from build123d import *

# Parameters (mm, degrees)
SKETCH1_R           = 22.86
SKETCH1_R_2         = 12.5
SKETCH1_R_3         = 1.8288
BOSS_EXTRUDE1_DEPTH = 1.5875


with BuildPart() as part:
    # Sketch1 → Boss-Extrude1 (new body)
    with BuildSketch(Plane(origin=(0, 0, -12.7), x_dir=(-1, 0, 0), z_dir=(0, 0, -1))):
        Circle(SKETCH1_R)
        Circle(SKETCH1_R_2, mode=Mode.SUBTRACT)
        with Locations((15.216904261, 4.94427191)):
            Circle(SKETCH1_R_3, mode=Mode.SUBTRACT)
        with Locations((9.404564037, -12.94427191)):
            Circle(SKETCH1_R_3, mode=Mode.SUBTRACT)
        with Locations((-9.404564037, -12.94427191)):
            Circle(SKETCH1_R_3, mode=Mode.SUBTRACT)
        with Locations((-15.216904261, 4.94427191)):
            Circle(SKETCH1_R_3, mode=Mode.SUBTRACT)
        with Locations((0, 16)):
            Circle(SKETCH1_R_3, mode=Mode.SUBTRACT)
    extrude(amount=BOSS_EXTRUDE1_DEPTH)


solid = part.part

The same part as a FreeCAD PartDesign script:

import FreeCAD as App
import Part
import Sketcher
from FreeCAD import Vector
Q = App.Units.Quantity

doc = App.newDocument("Part")
body = doc.addObject("PartDesign::Body", "Body")

# Sketch on XY plane
sketch1 = doc.addObject("Sketcher::SketchObject", "Sketch")
body.addObject(sketch1)
sketch1.AttachmentSupport = (doc.XY_Plane, [""])
sketch1.MapMode = "FlatFace"
sketch1.AttachmentOffset = App.Placement(Vector(0, 0, -0.5 * 25.4), App.Rotation())
sketch1.addGeometry([
    Part.Circle(Vector(0, 0, 0), Vector(0, 0, 1), 22.86),  # 0
    Part.Circle(Vector(9.404564, -12.944272, 0), Vector(0, 0, 1), 1.8288),  # 1
    Part.Circle(Vector(0, 0, 0), Vector(0, 0, 1), 12.5),  # 2
    Part.Circle(Vector(-9.404564, -12.944272, 0), Vector(0, 0, 1), 1.8288),  # 3
    Part.Circle(Vector(15.216904, 4.944272, 0), Vector(0, 0, 1), 1.8288),  # 4
    Part.Circle(Vector(-15.216904, 4.944272, 0), Vector(0, 0, 1), 1.8288),  # 5
    Part.Circle(Vector(0, 16, 0), Vector(0, 0, 1), 1.8288),  # 6
], False)
sketch1.addConstraint([
    Sketcher.Constraint("Coincident", 0, 3, -1, 1),
    Sketcher.Constraint("Coincident", 2, 3, -1, 1),
    Sketcher.Constraint("Equal", 1, 3),
    Sketcher.Constraint("Equal", 3, 4),
    Sketcher.Constraint("Equal", 4, 5),
    Sketcher.Constraint("Equal", 5, 6),
    Sketcher.Constraint("Symmetric", 1, 3, 3, 3, -2),
    Sketcher.Constraint("Symmetric", 4, 3, 5, 3, -2),
    Sketcher.Constraint("PointOnObject", 6, 3, -2),
    Sketcher.Constraint("Diameter", 0, Q("1.8 in")),
    Sketcher.Constraint("Diameter", 1, Q("0.144 in")),
    Sketcher.Constraint("Diameter", 2, 25.0),
    Sketcher.Constraint("DistanceY", -1, 1, 6, 3, 16.0),
    Sketcher.Constraint("DistanceY", 1, 3, -1, 1, 12.944272),
    Sketcher.Constraint("DistanceY", -1, 1, 4, 3, 4.944272),
    Sketcher.Constraint("DistanceX", 3, 3, 1, 3, 18.809128),
    Sketcher.Constraint("DistanceX", 1, 3, 4, 3, 5.81234),
])
pad1 = doc.addObject("PartDesign::Pad", "Pad")
body.addObject(pad1)
pad1.Profile = sketch1
pad1.Length = Q("0.0625 in")
pad1.Reversed = True

doc.recompute()
